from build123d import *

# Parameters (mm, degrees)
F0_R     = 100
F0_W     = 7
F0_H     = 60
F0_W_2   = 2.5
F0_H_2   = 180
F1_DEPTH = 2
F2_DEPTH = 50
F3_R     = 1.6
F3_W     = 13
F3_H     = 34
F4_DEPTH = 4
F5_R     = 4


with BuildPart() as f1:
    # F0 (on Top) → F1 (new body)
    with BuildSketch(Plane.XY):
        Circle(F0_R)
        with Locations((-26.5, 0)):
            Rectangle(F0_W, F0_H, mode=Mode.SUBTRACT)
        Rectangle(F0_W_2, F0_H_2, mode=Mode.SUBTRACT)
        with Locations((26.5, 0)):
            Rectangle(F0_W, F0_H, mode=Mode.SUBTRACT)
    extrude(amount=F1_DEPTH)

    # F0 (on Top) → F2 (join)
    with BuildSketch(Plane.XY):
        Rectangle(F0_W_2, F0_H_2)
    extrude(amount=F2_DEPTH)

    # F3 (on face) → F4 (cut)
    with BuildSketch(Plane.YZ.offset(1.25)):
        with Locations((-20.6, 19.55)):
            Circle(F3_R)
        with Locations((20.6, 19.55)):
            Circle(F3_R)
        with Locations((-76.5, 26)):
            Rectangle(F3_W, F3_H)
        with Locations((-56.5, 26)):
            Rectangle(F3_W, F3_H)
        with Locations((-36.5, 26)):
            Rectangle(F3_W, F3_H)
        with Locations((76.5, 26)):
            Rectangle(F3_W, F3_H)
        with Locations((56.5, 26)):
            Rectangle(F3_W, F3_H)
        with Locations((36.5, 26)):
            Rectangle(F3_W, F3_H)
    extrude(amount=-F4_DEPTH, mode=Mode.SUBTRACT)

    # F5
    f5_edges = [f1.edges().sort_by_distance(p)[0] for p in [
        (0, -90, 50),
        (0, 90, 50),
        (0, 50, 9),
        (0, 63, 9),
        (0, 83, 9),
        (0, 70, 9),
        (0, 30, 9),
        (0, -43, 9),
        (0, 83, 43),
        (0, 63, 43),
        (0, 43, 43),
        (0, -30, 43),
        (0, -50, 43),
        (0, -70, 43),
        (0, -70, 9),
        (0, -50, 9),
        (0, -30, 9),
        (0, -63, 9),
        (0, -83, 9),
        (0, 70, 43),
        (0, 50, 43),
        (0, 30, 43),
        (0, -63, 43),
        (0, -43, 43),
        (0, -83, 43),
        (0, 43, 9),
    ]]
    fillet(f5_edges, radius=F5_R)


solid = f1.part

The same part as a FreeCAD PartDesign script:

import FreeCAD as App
import Part
import Sketcher
from FreeCAD import Vector
Q = App.Units.Quantity


def edges_at(feature, points):
    """Names of the edges that pass closest to the given points."""
    edges = feature.Shape.Edges
    near = lambda p: min(range(len(edges)), key=lambda i: edges[i].distToShape(Part.Vertex(*p))[0])
    return sorted({f"Edge{near(p) + 1}" for p in points})

doc = App.newDocument("Part")
body = doc.addObject("PartDesign::Body", "Body")

# Sketch on XY plane
sketch1 = body.newObject("Sketcher::SketchObject", "Sketch")
sketch1.AttachmentSupport = (doc.getObject("XY_Plane"), [""])
sketch1.MapMode = "FlatFace"
sketch1.addGeometry([
    Part.Circle(Vector(0, 0, 0), Vector(0, 0, 1), 100),  # 0
    Part.LineSegment(Vector(-23, -30, 0), Vector(-30, -30, 0)),  # 1
    Part.LineSegment(Vector(-30, -30, 0), Vector(-30, 30, 0)),  # 2
    Part.LineSegment(Vector(-30, 30, 0), Vector(-23, 30, 0)),  # 3
    Part.LineSegment(Vector(-23, 30, 0), Vector(-23, -30, 0)),  # 4
    Part.LineSegment(Vector(1.2, -90, 0), Vector(-1.2, -90, 0)),  # 5
    Part.LineSegment(Vector(-1.2, -90, 0), Vector(-1.2, 90, 0)),  # 6
    Part.LineSegment(Vector(-1.2, 90, 0), Vector(1.2, 90, 0)),  # 7
    Part.LineSegment(Vector(1.2, 90, 0), Vector(1.2, -90, 0)),  # 8
    Part.LineSegment(Vector(30, -30, 0), Vector(23, -30, 0)),  # 9
    Part.LineSegment(Vector(23, -30, 0), Vector(23, 30, 0)),  # 10
    Part.LineSegment(Vector(23, 30, 0), Vector(30, 30, 0)),  # 11
    Part.LineSegment(Vector(30, 30, 0), Vector(30, -30, 0)),  # 12
], False)
sketch1.addConstraint([
    Sketcher.Constraint("Coincident", 1, 2, 2, 1),
    Sketcher.Constraint("Coincident", 2, 2, 3, 1),
    Sketcher.Constraint("Coincident", 3, 2, 4, 1),
    Sketcher.Constraint("Coincident", 4, 2, 1, 1),
    Sketcher.Constraint("Coincident", 5, 2, 6, 1),
    Sketcher.Constraint("Coincident", 6, 2, 7, 1),
    Sketcher.Constraint("Coincident", 7, 2, 8, 1),
    Sketcher.Constraint("Coincident", 8, 2, 5, 1),
    Sketcher.Constraint("Coincident", 9, 2, 10, 1),
    Sketcher.Constraint("Coincident", 10, 2, 11, 1),
    Sketcher.Constraint("Coincident", 11, 2, 12, 1),
    Sketcher.Constraint("Coincident", 12, 2, 9, 1),
    Sketcher.Constraint("Horizontal", 1),
    Sketcher.Constraint("Vertical", 2),
    Sketcher.Constraint("Horizontal", 3),
    Sketcher.Constraint("Vertical", 4),
    Sketcher.Constraint("Horizontal", 5),
    Sketcher.Constraint("Vertical", 6),
    Sketcher.Constraint("Horizontal", 7),
    Sketcher.Constraint("Vertical", 8),
    Sketcher.Constraint("Horizontal", 9),
    Sketcher.Constraint("Vertical", 10),
    Sketcher.Constraint("Horizontal", 11),
    Sketcher.Constraint("Vertical", 12),
    Sketcher.Constraint("Coincident", 0, 3, -1, 1),
    Sketcher.Constraint("Symmetric", 5, 2, 7, 2, -1, 1),
    Sketcher.Constraint("Symmetric", 3, 2, 9, 2, -1, 1),
    Sketcher.Constraint("Symmetric", 1, 2, 11, 2, -1, 1),
    Sketcher.Constraint("Horizontal", 4, 2, 9, 2),
    Sketcher.Constraint("Diameter", 0, Q("200 mm")),
    Sketcher.Constraint("DistanceX", 1, 2, 1, 1, Q("7 mm")),
    Sketcher.Constraint("DistanceY", 2, 1, 2, 2, Q("60 mm")),
    Sketcher.Constraint("DistanceY", 6, 1, 6, 2, Q("180 mm")),
    Sketcher.Constraint("DistanceX", 5, 2, 5, 1, Q("2.5 mm")),
    Sketcher.Constraint("DistanceX", 1, 2, -1, 1, Q("30 mm")),
])
pad1 = body.newObject("PartDesign::Pad", "Pad")
pad1.Profile = sketch1
pad1.Length = 2

# Sketch on XY plane
sketch2 = body.newObject("Sketcher::SketchObject", "Sketch001")
sketch2.AttachmentSupport = (doc.getObject("XY_Plane"), [""])
sketch2.MapMode = "FlatFace"
sketch2.addGeometry([
    Part.LineSegment(Vector(-1.2, 90, 0), Vector(-1.2, -90, 0)),
    Part.LineSegment(Vector(-1.2, -90, 0), Vector(1.2, -90, 0)),
    Part.LineSegment(Vector(1.2, -90, 0), Vector(1.2, 90, 0)),
    Part.LineSegment(Vector(1.2, 90, 0), Vector(-1.2, 90, 0)),
], False)
sketch2.addConstraint([
    Sketcher.Constraint("Coincident", 0, 2, 1, 1),
    Sketcher.Constraint("Coincident", 1, 2, 2, 1),
    Sketcher.Constraint("Coincident", 2, 2, 3, 1),
    Sketcher.Constraint("Coincident", 3, 2, 0, 1),
    Sketcher.Constraint("Vertical", 0),
    Sketcher.Constraint("Horizontal", 1),
    Sketcher.Constraint("Vertical", 2),
    Sketcher.Constraint("Horizontal", 3),
    Sketcher.Constraint("Symmetric", 0, 2, 2, 2, -1, 1),
    Sketcher.Constraint("DistanceY", 0, 2, 0, 1, Q("180 mm")),
    Sketcher.Constraint("DistanceX", 1, 1, 1, 2, Q("2.5 mm")),
])
pad2 = body.newObject("PartDesign::Pad", "Pad001")
pad2.Profile = sketch2
pad2.Length = 50

# Sketch on YZ plane
sketch3 = body.newObject("Sketcher::SketchObject", "Sketch002")
sketch3.AttachmentSupport = (doc.getObject("YZ_Plane"), [""])
sketch3.MapMode = "FlatFace"
sketch3.AttachmentOffset = App.Placement(Vector(0, 0, 1.25), App.Rotation())
sketch3.addGeometry([
    Part.Circle(Vector(-20.6, 19.6, 0), Vector(0, 0, 1), 1.6),  # 0
    Part.Circle(Vector(20.6, 19.6, 0), Vector(0, 0, 1), 1.6),  # 1
    Part.LineSegment(Vector(-83, 43, 0), Vector(-83, 9, 0)),  # 2
    Part.LineSegment(Vector(-83, 9, 0), Vector(-70, 9, 0)),  # 3
    Part.LineSegment(Vector(-70, 9, 0), Vector(-70, 43, 0)),  # 4
    Part.LineSegment(Vector(-70, 43, 0), Vector(-83, 43, 0)),  # 5
    Part.LineSegment(Vector(-63, 43, 0), Vector(-63, 9, 0)),  # 6
    Part.LineSegment(Vector(-63, 9, 0), Vector(-50, 9, 0)),  # 7
    Part.LineSegment(Vector(-50, 9, 0), Vector(-50, 43, 0)),  # 8
    Part.LineSegment(Vector(-50, 43, 0), Vector(-63, 43, 0)),  # 9
    Part.LineSegment(Vector(-43, 43, 0), Vector(-43, 9, 0)),  # 10
    Part.LineSegment(Vector(-43, 9, 0), Vector(-30, 9, 0)),  # 11
    Part.LineSegment(Vector(-30, 9, 0), Vector(-30, 43, 0)),  # 12
    Part.LineSegment(Vector(-30, 43, 0), Vector(-43, 43, 0)),  # 13
    Part.LineSegment(Vector(70, 43, 0), Vector(70, 9, 0)),  # 14
    Part.LineSegment(Vector(70, 9, 0), Vector(83, 9, 0)),  # 15
    Part.LineSegment(Vector(83, 9, 0), Vector(83, 43, 0)),  # 16
    Part.LineSegment(Vector(83, 43, 0), Vector(70, 43, 0)),  # 17
    Part.LineSegment(Vector(50, 43, 0), Vector(50, 9, 0)),  # 18
    Part.LineSegment(Vector(50, 9, 0), Vector(63, 9, 0)),  # 19
    Part.LineSegment(Vector(63, 9, 0), Vector(63, 43, 0)),  # 20
    Part.LineSegment(Vector(63, 43, 0), Vector(50, 43, 0)),  # 21
    Part.LineSegment(Vector(30, 43, 0), Vector(30, 9, 0)),  # 22
    Part.LineSegment(Vector(30, 9, 0), Vector(43, 9, 0)),  # 23
    Part.LineSegment(Vector(43, 9, 0), Vector(43, 43, 0)),  # 24
    Part.LineSegment(Vector(43, 43, 0), Vector(30, 43, 0)),  # 25
], False)
sketch3.addConstraint([
    Sketcher.Constraint("Coincident", 2, 2, 3, 1),
    Sketcher.Constraint("Coincident", 3, 2, 4, 1),
    Sketcher.Constraint("Coincident", 4, 2, 5, 1),
    Sketcher.Constraint("Coincident", 5, 2, 2, 1),
    Sketcher.Constraint("Coincident", 6, 2, 7, 1),
    Sketcher.Constraint("Coincident", 7, 2, 8, 1),
    Sketcher.Constraint("Coincident", 8, 2, 9, 1),
    Sketcher.Constraint("Coincident", 9, 2, 6, 1),
    Sketcher.Constraint("Coincident", 10, 2, 11, 1),
    Sketcher.Constraint("Coincident", 11, 2, 12, 1),
    Sketcher.Constraint("Coincident", 12, 2, 13, 1),
    Sketcher.Constraint("Coincident", 13, 2, 10, 1),
    Sketcher.Constraint("Coincident", 14, 2, 15, 1),
    Sketcher.Constraint("Coincident", 15, 2, 16, 1),
    Sketcher.Constraint("Coincident", 16, 2, 17, 1),
    Sketcher.Constraint("Coincident", 17, 2, 14, 1),
    Sketcher.Constraint("Coincident", 18, 2, 19, 1),
    Sketcher.Constraint("Coincident", 19, 2, 20, 1),
    Sketcher.Constraint("Coincident", 20, 2, 21, 1),
    Sketcher.Constraint("Coincident", 21, 2, 18, 1),
    Sketcher.Constraint("Coincident", 22, 2, 23, 1),
    Sketcher.Constraint("Coincident", 23, 2, 24, 1),
    Sketcher.Constraint("Coincident", 24, 2, 25, 1),
    Sketcher.Constraint("Coincident", 25, 2, 22, 1),
    Sketcher.Constraint("Vertical", 2),
    Sketcher.Constraint("Horizontal", 3),
    Sketcher.Constraint("Vertical", 4),
    Sketcher.Constraint("Horizontal", 5),
    Sketcher.Constraint("Vertical", 6),
    Sketcher.Constraint("Horizontal", 7),
    Sketcher.Constraint("Vertical", 8),
    Sketcher.Constraint("Horizontal", 9),
    Sketcher.Constraint("Vertical", 10),
    Sketcher.Constraint("Horizontal", 11),
    Sketcher.Constraint("Vertical", 12),
    Sketcher.Constraint("Horizontal", 13),
    Sketcher.Constraint("Vertical", 14),
    Sketcher.Constraint("Horizontal", 15),
    Sketcher.Constraint("Vertical", 16),
    Sketcher.Constraint("Horizontal", 17),
    Sketcher.Constraint("Vertical", 18),
    Sketcher.Constraint("Horizontal", 19),
    Sketcher.Constraint("Vertical", 20),
    Sketcher.Constraint("Horizontal", 21),
    Sketcher.Constraint("Vertical", 22),
    Sketcher.Constraint("Horizontal", 23),
    Sketcher.Constraint("Vertical", 24),
    Sketcher.Constraint("Horizontal", 25),
    Sketcher.Constraint("Equal", 0, 1),
    Sketcher.Constraint("Symmetric", 0, 3, 1, 3, -2),
    Sketcher.Constraint("Symmetric", 3, 2, 14, 2, -2),
    Sketcher.Constraint("Symmetric", 5, 2, 16, 2, -2),
    Sketcher.Constraint("Symmetric", 7, 2, 18, 2, -2),
    Sketcher.Constraint("Symmetric", 9, 2, 20, 2, -2),
    Sketcher.Constraint("Symmetric", 11, 2, 22, 2, -2),
    Sketcher.Constraint("Symmetric", 13, 2, 24, 2, -2),
    Sketcher.Constraint("Horizontal", 3, 2, 6, 2),
    Sketcher.Constraint("Horizontal", 5, 2, 8, 2),
    Sketcher.Constraint("Horizontal", 7, 2, 10, 2),
    Sketcher.Constraint("Horizontal", 9, 2, 12, 2),
    Sketcher.Constraint("Equal", 5, 7),
    Sketcher.Constraint("Equal", 9, 11),
    Sketcher.Constraint("Diameter", 0, Q("3.2 mm")),
    Sketcher.Constraint("DistanceX", 3, 1, 3, 2, Q("13 mm")),
    Sketcher.Constraint("DistanceY", 2, 2, 2, 1, Q("34 mm")),
    Sketcher.Constraint("DistanceX", 2, 2, -1, 1, Q("83 mm")),
    Sketcher.Constraint("DistanceY", -1, 1, 2, 2, Q("9 mm")),
    Sketcher.Constraint("DistanceX", 6, 2, -1, 1, Q("63 mm")),
    Sketcher.Constraint("DistanceX", 10, 2, -1, 1, Q("43 mm")),
    Sketcher.Constraint("DistanceX", 0, 3, -1, 1, Q("20.6 mm")),
    Sketcher.Constraint("DistanceY", -1, 1, 0, 3, Q("19.55 mm")),
])
pocket1 = body.newObject("PartDesign::Pocket", "Pocket")
pocket1.Profile = sketch3
pocket1.Length = 4
doc.recompute()

fillet = body.newObject("PartDesign::Fillet", "Fillet")
fillet.Base = (pocket1, edges_at(pocket1, [
    (0, -90, 50),
    (0, 90, 50),
    (0, 50, 9),
    (0, 63, 9),
    (0, 83, 9),
    (0, 70, 9),
    (0, 30, 9),
    (0, -43, 9),
    (0, 83, 43),
    (0, 63, 43),
    (0, 43, 43),
    (0, -30, 43),
    (0, -50, 43),
    (0, -70, 43),
    (0, -70, 9),
    (0, -50, 9),
    (0, -30, 9),
    (0, -63, 9),
    (0, -83, 9),
    (0, 70, 43),
    (0, 50, 43),
    (0, 30, 43),
    (0, -63, 43),
    (0, -43, 43),
    (0, -83, 43),
    (0, 43, 9),
]))
fillet.Radius = 4

doc.recompute()
